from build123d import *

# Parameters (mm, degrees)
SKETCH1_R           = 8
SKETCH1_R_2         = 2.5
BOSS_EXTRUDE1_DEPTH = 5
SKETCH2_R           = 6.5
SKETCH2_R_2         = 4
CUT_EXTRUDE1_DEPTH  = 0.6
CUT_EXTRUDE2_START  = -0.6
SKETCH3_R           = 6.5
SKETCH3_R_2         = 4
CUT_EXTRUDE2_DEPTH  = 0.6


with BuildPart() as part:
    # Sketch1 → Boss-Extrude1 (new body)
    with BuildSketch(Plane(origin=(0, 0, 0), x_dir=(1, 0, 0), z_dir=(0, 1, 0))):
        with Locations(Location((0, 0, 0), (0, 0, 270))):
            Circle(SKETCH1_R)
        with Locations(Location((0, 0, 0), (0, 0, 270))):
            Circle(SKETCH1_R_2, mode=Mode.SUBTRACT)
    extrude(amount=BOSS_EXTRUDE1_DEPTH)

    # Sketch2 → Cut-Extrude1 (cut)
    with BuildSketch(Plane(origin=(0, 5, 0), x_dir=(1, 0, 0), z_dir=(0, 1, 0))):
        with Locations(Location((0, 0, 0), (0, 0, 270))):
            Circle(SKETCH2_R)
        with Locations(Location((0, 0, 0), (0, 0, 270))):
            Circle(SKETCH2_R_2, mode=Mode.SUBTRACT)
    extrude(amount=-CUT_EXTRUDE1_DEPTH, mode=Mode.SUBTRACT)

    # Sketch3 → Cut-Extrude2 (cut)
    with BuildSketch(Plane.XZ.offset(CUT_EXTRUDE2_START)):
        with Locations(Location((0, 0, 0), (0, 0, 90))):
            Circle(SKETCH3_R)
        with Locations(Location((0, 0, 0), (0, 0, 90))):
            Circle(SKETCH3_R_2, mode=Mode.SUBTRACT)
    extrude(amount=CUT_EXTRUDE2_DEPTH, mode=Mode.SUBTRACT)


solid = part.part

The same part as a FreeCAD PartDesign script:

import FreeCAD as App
import Part
import Sketcher

doc = App.newDocument("Part")
body = doc.addObject("PartDesign::Body", "Body")

sketch1 = body.newObject("Sketcher::SketchObject", "Sketch")
sketch1.AttachmentSupport = (doc.getObject("XZ_Plane"), [""])
sketch1.MapMode = "FlatFace"
sketch1.addGeometry(Part.Circle(App.Vector(0, 0, 0), App.Vector(0, 0, 1), 8), False)
sketch1.addGeometry(Part.Circle(App.Vector(0, 0, 0), App.Vector(0, 0, 1), 2.5), False)
sketch1.addConstraint(Sketcher.Constraint("Coincident", 0, 3, -1, 1))
sketch1.addConstraint(Sketcher.Constraint("Coincident", 1, 3, -1, 1))
sketch1.addConstraint(Sketcher.Constraint("Diameter", 0, 16.0))
sketch1.addConstraint(Sketcher.Constraint("Diameter", 1, 5.0))
pad1 = body.newObject("PartDesign::Pad", "Pad")
pad1.Profile = sketch1
pad1.Length = 5
pad1.Reversed = True

sketch2 = body.newObject("Sketcher::SketchObject", "Sketch001")
sketch2.AttachmentSupport = (doc.getObject("XZ_Plane"), [""])
sketch2.MapMode = "FlatFace"
sketch2.AttachmentOffset = App.Placement(App.Vector(0, 0, -5), App.Rotation())
sketch2.addGeometry(Part.Circle(App.Vector(0, 0, 0), App.Vector(0, 0, 1), 6.5), False)
sketch2.addGeometry(Part.Circle(App.Vector(0, 0, 0), App.Vector(0, 0, 1), 4), False)
sketch2.addConstraint(Sketcher.Constraint("Coincident", 0, 3, -1, 1))
sketch2.addConstraint(Sketcher.Constraint("Coincident", 1, 3, -1, 1))
sketch2.addConstraint(Sketcher.Constraint("Diameter", 0, 13.0))
sketch2.addConstraint(Sketcher.Constraint("Diameter", 1, 8.0))
pocket1 = body.newObject("PartDesign::Pocket", "Pocket")
pocket1.Profile = sketch2
pocket1.Length = 0.6
pocket1.Reversed = True

sketch3 = body.newObject("Sketcher::SketchObject", "Sketch002")
sketch3.AttachmentSupport = (doc.getObject("XZ_Plane"), [""])
sketch3.MapMode = "FlatFace"
sketch3.AttachmentOffset = App.Placement(App.Vector(0, 0, -0.6), App.Rotation())
sketch3.addGeometry(Part.Circle(App.Vector(0, 0, 0), App.Vector(0, 0, 1), 6.5), False)
sketch3.addGeometry(Part.Circle(App.Vector(0, 0, 0), App.Vector(0, 0, 1), 4), False)
sketch3.addConstraint(Sketcher.Constraint("Coincident", 0, 3, -1, 1))
sketch3.addConstraint(Sketcher.Constraint("Coincident", 1, 3, -1, 1))
sketch3.addConstraint(Sketcher.Constraint("Diameter", 0, 13.0))
sketch3.addConstraint(Sketcher.Constraint("Diameter", 1, 8.0))
pocket2 = body.newObject("PartDesign::Pocket", "Pocket001")
pocket2.Profile = sketch3
pocket2.Length = 0.6
pocket2.Reversed = True

doc.recompute()
